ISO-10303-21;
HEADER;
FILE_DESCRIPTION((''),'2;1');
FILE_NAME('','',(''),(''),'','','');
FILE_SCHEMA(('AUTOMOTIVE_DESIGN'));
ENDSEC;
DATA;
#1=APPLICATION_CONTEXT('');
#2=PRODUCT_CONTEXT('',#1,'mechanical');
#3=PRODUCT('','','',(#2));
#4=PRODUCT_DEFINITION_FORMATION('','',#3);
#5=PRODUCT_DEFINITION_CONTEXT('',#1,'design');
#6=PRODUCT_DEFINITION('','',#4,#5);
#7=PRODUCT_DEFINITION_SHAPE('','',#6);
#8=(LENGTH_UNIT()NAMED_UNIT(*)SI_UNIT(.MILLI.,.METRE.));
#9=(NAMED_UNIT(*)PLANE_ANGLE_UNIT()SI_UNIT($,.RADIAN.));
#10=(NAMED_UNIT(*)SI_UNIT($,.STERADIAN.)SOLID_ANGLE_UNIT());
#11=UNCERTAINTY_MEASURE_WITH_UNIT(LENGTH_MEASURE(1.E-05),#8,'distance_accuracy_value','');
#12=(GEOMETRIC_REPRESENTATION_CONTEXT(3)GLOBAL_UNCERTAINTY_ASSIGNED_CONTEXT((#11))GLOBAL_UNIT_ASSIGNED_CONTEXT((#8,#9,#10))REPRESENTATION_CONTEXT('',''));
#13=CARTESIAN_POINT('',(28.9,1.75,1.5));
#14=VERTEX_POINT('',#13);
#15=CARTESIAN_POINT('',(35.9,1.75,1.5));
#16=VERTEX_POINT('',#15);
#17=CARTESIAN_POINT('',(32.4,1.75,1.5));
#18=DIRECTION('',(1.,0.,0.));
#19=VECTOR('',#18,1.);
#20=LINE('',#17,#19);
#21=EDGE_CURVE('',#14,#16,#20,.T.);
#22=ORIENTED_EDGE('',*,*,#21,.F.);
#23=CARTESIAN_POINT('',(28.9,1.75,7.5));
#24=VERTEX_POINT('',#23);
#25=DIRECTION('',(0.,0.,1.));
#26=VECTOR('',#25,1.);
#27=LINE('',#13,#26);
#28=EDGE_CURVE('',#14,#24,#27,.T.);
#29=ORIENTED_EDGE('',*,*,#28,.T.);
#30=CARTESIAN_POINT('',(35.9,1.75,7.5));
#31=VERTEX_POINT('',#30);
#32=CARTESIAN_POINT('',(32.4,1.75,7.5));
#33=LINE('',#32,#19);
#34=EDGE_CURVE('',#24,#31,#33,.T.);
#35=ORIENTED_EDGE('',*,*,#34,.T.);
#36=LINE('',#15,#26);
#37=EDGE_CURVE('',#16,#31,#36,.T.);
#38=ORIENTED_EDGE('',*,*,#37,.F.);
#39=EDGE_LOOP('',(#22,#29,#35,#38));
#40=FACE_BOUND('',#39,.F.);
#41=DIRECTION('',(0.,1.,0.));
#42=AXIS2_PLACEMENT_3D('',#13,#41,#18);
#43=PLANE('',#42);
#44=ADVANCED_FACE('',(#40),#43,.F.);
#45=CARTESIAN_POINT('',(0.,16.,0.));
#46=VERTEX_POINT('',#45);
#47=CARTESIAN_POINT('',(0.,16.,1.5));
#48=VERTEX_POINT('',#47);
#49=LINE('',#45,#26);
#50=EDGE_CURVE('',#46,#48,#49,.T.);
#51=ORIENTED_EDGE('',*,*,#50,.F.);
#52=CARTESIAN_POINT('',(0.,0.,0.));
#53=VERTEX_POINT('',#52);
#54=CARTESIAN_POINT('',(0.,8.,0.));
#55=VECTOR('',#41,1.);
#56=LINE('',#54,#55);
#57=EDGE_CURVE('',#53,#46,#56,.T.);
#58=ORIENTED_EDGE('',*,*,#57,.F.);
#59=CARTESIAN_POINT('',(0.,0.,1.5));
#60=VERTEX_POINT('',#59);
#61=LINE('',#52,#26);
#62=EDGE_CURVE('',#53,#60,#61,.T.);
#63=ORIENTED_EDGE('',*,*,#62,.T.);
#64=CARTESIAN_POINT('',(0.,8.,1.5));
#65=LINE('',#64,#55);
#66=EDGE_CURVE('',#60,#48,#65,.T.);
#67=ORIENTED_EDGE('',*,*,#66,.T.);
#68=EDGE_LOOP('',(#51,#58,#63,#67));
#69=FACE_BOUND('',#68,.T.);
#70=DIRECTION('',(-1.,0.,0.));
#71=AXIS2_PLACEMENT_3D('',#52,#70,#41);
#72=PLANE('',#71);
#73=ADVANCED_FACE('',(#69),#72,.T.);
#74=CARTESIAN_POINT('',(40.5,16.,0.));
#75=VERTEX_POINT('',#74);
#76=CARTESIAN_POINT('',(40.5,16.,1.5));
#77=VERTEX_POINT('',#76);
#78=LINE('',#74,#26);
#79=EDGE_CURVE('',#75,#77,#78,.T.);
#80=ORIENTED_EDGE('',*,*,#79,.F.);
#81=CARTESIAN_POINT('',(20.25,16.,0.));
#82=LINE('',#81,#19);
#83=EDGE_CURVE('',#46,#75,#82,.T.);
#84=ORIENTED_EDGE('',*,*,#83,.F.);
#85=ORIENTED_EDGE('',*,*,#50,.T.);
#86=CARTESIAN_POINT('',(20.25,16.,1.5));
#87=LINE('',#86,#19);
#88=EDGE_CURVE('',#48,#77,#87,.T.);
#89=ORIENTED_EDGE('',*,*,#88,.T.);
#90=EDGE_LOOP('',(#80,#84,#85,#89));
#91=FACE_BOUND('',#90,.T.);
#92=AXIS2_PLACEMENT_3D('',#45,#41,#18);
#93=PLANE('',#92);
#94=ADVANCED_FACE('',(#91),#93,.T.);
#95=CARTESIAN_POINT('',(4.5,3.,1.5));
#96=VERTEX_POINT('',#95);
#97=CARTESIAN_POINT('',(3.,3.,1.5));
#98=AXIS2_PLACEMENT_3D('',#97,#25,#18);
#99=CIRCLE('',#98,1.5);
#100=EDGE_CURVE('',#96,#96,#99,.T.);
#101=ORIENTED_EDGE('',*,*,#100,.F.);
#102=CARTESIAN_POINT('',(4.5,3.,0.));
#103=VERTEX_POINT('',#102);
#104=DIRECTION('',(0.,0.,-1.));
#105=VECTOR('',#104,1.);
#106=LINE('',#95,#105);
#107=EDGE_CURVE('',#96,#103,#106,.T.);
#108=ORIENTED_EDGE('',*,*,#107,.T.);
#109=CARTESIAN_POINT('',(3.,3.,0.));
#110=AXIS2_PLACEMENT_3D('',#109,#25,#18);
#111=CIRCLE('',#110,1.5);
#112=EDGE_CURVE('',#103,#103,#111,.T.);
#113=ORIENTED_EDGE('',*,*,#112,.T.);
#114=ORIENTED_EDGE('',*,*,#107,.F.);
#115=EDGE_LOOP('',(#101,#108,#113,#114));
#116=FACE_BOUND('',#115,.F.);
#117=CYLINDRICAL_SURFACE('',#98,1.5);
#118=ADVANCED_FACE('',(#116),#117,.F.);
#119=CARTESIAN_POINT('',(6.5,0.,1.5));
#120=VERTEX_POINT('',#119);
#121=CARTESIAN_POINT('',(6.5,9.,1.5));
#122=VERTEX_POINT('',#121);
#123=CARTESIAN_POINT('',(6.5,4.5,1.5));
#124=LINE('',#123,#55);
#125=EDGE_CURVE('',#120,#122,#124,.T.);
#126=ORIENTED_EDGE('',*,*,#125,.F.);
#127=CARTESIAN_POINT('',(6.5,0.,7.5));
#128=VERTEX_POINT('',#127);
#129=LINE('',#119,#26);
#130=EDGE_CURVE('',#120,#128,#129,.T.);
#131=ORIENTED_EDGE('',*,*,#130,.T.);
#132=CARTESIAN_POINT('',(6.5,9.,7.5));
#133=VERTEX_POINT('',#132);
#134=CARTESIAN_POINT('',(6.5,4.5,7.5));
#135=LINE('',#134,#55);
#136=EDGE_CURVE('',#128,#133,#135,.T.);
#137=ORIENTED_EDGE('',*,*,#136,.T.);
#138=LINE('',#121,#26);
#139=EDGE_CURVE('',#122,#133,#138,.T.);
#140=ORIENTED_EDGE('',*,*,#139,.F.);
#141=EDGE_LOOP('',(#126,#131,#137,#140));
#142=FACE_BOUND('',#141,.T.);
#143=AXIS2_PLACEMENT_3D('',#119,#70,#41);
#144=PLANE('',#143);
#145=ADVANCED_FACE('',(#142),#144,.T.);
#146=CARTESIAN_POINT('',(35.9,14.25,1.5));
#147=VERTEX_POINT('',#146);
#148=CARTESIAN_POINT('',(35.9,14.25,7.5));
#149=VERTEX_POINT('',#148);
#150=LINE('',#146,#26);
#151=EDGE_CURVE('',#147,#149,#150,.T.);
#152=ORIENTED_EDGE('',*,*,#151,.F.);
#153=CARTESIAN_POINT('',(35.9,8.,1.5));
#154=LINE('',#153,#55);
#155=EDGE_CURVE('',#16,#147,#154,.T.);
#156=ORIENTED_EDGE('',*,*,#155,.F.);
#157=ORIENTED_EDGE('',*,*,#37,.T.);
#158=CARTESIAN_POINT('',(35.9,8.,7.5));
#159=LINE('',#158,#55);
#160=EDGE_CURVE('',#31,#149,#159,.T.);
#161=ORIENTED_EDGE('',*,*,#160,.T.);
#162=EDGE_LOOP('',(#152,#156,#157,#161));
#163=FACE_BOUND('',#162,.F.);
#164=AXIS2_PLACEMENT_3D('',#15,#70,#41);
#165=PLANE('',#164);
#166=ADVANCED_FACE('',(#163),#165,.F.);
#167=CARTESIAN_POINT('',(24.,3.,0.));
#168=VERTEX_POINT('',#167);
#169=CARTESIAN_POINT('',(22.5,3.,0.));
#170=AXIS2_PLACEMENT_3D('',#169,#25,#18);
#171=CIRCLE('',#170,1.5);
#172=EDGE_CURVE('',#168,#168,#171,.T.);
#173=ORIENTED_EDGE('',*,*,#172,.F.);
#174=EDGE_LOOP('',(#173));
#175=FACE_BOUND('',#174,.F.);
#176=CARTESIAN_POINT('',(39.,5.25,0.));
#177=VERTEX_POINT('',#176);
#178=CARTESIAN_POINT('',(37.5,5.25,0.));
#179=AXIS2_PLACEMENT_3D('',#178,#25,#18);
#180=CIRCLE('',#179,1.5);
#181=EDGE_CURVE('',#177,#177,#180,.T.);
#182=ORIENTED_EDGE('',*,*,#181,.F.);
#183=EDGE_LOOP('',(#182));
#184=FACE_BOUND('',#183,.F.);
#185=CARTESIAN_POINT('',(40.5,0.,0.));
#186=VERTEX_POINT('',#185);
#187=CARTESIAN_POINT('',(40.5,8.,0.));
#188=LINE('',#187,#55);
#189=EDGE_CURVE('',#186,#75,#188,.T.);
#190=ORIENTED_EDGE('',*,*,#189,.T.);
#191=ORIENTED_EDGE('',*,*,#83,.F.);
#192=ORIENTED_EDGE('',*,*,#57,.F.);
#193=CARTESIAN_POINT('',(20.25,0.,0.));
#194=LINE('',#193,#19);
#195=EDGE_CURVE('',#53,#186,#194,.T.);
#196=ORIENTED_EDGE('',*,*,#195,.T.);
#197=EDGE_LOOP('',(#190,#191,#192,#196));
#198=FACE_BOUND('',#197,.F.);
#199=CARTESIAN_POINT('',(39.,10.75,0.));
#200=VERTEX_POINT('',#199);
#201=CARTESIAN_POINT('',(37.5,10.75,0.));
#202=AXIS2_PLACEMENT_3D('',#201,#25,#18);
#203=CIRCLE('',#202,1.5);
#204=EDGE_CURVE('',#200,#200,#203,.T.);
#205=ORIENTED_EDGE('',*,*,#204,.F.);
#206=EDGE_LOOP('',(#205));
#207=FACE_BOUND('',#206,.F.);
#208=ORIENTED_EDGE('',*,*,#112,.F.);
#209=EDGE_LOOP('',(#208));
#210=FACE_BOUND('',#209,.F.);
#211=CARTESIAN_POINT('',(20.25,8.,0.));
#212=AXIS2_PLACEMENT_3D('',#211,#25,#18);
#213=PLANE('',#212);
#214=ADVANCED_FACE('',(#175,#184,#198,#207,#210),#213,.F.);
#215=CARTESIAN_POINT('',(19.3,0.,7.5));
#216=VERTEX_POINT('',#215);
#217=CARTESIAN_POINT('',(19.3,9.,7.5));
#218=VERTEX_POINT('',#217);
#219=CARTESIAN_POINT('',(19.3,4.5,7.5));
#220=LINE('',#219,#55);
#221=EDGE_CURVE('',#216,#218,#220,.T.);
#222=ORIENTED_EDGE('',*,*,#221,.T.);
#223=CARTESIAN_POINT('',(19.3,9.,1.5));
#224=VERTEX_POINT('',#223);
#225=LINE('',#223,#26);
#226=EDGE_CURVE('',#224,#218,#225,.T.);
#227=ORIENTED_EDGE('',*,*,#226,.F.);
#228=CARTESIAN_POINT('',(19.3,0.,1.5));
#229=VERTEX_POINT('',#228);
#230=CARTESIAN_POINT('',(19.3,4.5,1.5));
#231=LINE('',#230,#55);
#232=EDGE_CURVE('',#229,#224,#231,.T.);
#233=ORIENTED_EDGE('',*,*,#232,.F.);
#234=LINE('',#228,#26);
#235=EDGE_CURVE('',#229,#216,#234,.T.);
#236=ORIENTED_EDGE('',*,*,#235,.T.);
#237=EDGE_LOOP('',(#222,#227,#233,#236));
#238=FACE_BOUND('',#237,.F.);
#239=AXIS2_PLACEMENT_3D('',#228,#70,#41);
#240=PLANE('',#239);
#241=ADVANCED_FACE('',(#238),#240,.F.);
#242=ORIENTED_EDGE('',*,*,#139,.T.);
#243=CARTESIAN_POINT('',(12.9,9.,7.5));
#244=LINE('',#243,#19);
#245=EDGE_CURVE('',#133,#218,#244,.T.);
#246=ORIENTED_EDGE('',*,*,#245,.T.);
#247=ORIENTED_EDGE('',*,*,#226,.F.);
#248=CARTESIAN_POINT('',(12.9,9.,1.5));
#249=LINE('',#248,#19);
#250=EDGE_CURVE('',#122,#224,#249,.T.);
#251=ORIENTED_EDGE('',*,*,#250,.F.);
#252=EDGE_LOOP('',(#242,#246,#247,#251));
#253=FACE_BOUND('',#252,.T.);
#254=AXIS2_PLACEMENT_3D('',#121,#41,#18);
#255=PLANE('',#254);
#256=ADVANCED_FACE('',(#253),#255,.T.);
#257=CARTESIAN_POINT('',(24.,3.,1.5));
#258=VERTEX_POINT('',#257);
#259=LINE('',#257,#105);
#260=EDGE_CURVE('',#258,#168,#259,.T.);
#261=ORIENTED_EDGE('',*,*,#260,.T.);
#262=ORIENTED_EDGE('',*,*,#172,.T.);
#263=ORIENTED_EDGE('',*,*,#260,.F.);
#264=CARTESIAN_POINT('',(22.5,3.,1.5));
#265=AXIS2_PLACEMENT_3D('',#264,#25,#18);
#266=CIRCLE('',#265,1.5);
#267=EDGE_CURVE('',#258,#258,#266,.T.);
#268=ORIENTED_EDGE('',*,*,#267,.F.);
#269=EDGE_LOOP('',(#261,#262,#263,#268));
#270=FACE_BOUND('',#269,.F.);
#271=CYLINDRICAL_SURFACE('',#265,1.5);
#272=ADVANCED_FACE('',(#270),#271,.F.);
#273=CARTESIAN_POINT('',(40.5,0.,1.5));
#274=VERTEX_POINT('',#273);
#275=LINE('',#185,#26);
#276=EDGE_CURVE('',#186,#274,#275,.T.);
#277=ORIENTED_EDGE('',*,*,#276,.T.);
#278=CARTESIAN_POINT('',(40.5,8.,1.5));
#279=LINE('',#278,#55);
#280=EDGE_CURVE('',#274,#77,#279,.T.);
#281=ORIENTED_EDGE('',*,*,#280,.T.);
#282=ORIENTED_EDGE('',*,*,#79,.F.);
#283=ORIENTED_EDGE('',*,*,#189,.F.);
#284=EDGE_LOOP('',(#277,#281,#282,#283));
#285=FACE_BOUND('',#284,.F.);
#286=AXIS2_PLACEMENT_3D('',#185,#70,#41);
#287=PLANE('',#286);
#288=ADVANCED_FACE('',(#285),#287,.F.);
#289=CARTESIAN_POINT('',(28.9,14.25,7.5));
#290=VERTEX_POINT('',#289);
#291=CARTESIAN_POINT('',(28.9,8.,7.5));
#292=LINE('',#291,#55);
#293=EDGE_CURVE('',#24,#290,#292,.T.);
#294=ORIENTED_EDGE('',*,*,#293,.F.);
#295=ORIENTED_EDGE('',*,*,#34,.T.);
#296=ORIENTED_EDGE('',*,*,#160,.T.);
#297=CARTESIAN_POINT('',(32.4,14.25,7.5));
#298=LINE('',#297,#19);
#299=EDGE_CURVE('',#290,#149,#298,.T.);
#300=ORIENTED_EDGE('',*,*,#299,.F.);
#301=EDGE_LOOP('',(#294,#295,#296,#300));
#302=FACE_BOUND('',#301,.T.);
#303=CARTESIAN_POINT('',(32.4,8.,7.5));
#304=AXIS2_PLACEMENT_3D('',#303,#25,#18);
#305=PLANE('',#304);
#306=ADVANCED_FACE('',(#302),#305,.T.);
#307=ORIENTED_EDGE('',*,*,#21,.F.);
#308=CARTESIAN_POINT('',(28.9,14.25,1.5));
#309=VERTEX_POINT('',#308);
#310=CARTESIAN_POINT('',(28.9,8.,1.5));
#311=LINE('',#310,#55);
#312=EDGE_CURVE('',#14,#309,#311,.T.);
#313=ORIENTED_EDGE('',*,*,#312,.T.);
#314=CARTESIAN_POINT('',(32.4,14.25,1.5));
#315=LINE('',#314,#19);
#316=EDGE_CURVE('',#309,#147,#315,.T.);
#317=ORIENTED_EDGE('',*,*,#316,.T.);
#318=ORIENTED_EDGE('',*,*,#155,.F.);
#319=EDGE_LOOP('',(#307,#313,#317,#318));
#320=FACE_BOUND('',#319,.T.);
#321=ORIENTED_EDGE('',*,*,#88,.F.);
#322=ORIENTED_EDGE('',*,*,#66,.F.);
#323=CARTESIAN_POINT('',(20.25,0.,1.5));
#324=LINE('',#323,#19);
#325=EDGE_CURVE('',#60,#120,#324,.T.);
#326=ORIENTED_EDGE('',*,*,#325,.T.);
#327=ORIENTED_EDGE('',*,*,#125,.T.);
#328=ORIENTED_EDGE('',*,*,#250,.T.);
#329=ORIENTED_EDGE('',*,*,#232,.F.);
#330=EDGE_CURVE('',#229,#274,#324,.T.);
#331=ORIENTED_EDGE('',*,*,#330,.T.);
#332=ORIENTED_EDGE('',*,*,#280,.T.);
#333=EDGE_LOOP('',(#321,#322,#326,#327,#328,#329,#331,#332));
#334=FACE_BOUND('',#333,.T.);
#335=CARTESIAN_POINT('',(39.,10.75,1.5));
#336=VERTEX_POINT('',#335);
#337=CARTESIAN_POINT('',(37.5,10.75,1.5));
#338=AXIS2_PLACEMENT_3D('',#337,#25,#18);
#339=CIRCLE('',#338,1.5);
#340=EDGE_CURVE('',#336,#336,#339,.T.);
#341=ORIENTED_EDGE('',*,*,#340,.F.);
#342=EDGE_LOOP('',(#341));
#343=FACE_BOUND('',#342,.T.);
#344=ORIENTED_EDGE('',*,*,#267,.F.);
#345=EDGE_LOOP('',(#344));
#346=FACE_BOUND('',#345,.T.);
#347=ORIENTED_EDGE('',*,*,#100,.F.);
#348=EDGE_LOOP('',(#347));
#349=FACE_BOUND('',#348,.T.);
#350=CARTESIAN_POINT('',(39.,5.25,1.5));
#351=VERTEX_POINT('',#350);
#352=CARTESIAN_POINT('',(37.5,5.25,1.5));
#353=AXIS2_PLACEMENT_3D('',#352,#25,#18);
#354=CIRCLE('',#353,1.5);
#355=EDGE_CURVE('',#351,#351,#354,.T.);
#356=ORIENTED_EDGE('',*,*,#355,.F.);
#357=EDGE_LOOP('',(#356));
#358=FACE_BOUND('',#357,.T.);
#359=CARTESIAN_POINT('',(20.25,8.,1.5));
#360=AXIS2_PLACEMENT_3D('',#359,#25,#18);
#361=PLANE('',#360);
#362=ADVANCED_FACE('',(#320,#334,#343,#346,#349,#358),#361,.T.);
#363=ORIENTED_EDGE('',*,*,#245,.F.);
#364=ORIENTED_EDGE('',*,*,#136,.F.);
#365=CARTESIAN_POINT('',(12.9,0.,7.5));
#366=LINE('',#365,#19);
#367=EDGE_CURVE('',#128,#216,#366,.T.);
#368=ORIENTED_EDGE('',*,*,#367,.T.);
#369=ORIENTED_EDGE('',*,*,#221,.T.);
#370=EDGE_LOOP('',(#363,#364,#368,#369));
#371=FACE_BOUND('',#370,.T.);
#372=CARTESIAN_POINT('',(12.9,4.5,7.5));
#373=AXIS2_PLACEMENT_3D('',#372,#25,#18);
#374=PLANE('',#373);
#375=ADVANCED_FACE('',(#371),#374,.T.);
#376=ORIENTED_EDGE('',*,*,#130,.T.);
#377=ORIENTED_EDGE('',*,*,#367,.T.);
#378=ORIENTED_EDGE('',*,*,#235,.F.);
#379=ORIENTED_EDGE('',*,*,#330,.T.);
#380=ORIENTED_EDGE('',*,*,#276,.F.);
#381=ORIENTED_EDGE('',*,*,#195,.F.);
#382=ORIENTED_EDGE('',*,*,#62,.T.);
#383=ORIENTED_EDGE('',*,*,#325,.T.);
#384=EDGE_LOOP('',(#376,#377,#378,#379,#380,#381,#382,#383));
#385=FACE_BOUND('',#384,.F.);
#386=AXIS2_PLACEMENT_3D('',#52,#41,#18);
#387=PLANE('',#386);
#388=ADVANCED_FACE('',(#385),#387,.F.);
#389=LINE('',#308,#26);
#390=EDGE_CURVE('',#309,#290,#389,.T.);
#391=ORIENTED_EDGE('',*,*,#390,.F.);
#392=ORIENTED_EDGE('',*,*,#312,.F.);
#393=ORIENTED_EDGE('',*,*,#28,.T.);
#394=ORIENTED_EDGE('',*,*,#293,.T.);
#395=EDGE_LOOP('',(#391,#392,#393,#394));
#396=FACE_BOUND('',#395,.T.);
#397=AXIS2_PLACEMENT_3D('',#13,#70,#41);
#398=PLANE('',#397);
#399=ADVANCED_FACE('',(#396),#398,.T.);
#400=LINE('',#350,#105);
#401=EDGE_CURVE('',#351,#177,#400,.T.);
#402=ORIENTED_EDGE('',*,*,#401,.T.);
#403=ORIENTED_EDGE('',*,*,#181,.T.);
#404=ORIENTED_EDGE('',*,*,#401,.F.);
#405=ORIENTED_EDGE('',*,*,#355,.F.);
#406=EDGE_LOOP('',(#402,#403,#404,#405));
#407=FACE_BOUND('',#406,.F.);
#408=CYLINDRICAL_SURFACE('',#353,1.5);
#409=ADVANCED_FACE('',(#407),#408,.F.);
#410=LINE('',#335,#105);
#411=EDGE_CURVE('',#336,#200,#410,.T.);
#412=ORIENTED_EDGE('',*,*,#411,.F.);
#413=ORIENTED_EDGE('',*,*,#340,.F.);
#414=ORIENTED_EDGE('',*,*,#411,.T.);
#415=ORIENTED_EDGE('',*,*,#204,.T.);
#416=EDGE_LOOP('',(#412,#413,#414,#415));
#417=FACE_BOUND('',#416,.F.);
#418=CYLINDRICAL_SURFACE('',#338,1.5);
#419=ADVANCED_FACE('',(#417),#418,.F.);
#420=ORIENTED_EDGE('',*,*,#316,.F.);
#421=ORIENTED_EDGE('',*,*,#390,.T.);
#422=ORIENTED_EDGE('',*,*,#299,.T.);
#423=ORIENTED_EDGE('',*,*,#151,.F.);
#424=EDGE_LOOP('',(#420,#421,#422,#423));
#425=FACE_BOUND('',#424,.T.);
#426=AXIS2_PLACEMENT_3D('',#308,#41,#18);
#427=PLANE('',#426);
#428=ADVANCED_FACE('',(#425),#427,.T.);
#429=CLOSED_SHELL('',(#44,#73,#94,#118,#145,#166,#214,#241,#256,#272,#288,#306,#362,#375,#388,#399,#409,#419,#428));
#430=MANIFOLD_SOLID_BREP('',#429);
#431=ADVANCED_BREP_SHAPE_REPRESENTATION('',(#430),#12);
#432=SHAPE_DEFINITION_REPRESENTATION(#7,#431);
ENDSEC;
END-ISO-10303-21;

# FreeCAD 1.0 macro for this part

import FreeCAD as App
import Part
import Sketcher

doc = App.newDocument("Part")
body = doc.addObject("PartDesign::Body", "Body")

sketch1 = doc.addObject("Sketcher::SketchObject", "Sketch")
body.addObject(sketch1)
sketch1.AttachmentSupport = (doc.XY_Plane, [""])
sketch1.MapMode = "FlatFace"
sketch1.addGeometry([
    Part.LineSegment(App.Vector(0, 16, 0), App.Vector(0, 0, 0)),
    Part.LineSegment(App.Vector(0, 0, 0), App.Vector(40.5, 0, 0)),
    Part.LineSegment(App.Vector(40.5, 0, 0), App.Vector(40.5, 16, 0)),
    Part.LineSegment(App.Vector(40.5, 16, 0), App.Vector(0, 16, 0)),
], False)
sketch1.addConstraint([
    Sketcher.Constraint("Coincident", 0, 2, 1, 1),
    Sketcher.Constraint("Coincident", 1, 2, 2, 1),
    Sketcher.Constraint("Coincident", 2, 2, 3, 1),
    Sketcher.Constraint("Coincident", 3, 2, 0, 1),
    Sketcher.Constraint("Vertical", 0),
    Sketcher.Constraint("Horizontal", 1),
    Sketcher.Constraint("Vertical", 2),
    Sketcher.Constraint("Horizontal", 3),
    Sketcher.Constraint("Coincident", 0, 2, -1, 1),
    Sketcher.Constraint("DistanceY", 0, 2, 0, 1, 16.0),
    Sketcher.Constraint("DistanceX", 1, 1, 1, 2, 40.5),
])
pad1 = doc.addObject("PartDesign::Pad", "Pad")
body.addObject(pad1)
pad1.Profile = sketch1
pad1.Length = 1.5

sketch2 = doc.addObject("Sketcher::SketchObject", "Sketch001")
body.addObject(sketch2)
sketch2.AttachmentSupport = (doc.XY_Plane, [""])
sketch2.MapMode = "FlatFace"
sketch2.AttachmentOffset = App.Placement(App.Vector(0, 0, 1.5), App.Rotation())
sketch2.addGeometry([
    Part.Circle(App.Vector(3, 3, 0), App.Vector(0, 0, 1), 1.5),
    Part.Circle(App.Vector(22.5, 3, 0), App.Vector(0, 0, 1), 1.5),
    Part.Circle(App.Vector(37.5, 10.75, 0), App.Vector(0, 0, 1), 1.5),
    Part.Circle(App.Vector(37.5, 5.25, 0), App.Vector(0, 0, 1), 1.5),
], False)
sketch2.addConstraint([
    Sketcher.Constraint("Equal", 0, 1),
    Sketcher.Constraint("Equal", 1, 2),
    Sketcher.Constraint("Equal", 2, 3),
    Sketcher.Constraint("Horizontal", 0, 3, 1, 3),
    Sketcher.Constraint("Vertical", 2, 3, 3, 3),
    Sketcher.Constraint("Diameter", 0, 3.0),
    Sketcher.Constraint("DistanceX", -1, 1, 0, 3, 3.0),
    Sketcher.Constraint("DistanceY", -1, 1, 0, 3, 3.0),
    Sketcher.Constraint("DistanceX", 1, 3, 2, 3, 15.0),
    Sketcher.Constraint("DistanceX", -1, 1, 1, 3, 22.5),
    Sketcher.Constraint("DistanceY", 3, 3, 2, 3, 5.5),
    Sketcher.Constraint("DistanceY", -1, 1, 2, 3, 10.75),
])
pocket1 = doc.addObject("PartDesign::Pocket", "Pocket")
body.addObject(pocket1)
pocket1.Profile = sketch2
pocket1.Type = "ThroughAll"

sketch3 = doc.addObject("Sketcher::SketchObject", "Sketch002")
body.addObject(sketch3)
sketch3.AttachmentSupport = (doc.XY_Plane, [""])
sketch3.MapMode = "FlatFace"
sketch3.AttachmentOffset = App.Placement(App.Vector(0, 0, 1.5), App.Rotation())
sketch3.addGeometry([
    Part.LineSegment(App.Vector(6.5, 9, 0), App.Vector(6.5, 0, 0)),
    Part.LineSegment(App.Vector(6.5, 0, 0), App.Vector(19.3, 0, 0)),
    Part.LineSegment(App.Vector(19.3, 0, 0), App.Vector(19.3, 9, 0)),
    Part.LineSegment(App.Vector(19.3, 9, 0), App.Vector(6.5, 9, 0)),
    Part.LineSegment(App.Vector(28.9, 14.25, 0), App.Vector(28.9, 1.75, 0)),
    Part.LineSegment(App.Vector(28.9, 1.75, 0), App.Vector(35.9, 1.75, 0)),
    Part.LineSegment(App.Vector(35.9, 1.75, 0), App.Vector(35.9, 14.25, 0)),
    Part.LineSegment(App.Vector(35.9, 14.25, 0), App.Vector(28.9, 14.25, 0)),
], False)
sketch3.addConstraint([
    Sketcher.Constraint("Coincident", 0, 2, 1, 1),
    Sketcher.Constraint("Coincident", 1, 2, 2, 1),
    Sketcher.Constraint("Coincident", 2, 2, 3, 1),
    Sketcher.Constraint("Coincident", 3, 2, 0, 1),
    Sketcher.Constraint("Coincident", 4, 2, 5, 1),
    Sketcher.Constraint("Coincident", 5, 2, 6, 1),
    Sketcher.Constraint("Coincident", 6, 2, 7, 1),
    Sketcher.Constraint("Coincident", 7, 2, 4, 1),
    Sketcher.Constraint("Vertical", 0),
    Sketcher.Constraint("Horizontal", 1),
    Sketcher.Constraint("Vertical", 2),
    Sketcher.Constraint("Horizontal", 3),
    Sketcher.Constraint("Vertical", 4),
    Sketcher.Constraint("Horizontal", 5),
    Sketcher.Constraint("Vertical", 6),
    Sketcher.Constraint("Horizontal", 7),
    Sketcher.Constraint("PointOnObject", 0, 2, -1),
    Sketcher.Constraint("DistanceX", 5, 1, 5, 2, 7.0),
    Sketcher.Constraint("DistanceY", 0, 2, 0, 1, 9.0),
    Sketcher.Constraint("DistanceX", 1, 1, 1, 2, 12.8),
    Sketcher.Constraint("DistanceY", 4, 2, 4, 1, 12.5),
    Sketcher.Constraint("DistanceX", -1, 1, 0, 2, 6.5),
    Sketcher.Constraint("DistanceX", -1, 1, 4, 2, 28.9),
    Sketcher.Constraint("DistanceY", -1, 1, 4, 2, 1.75),
])
pad2 = doc.addObject("PartDesign::Pad", "Pad001")
body.addObject(pad2)
pad2.Profile = sketch3
pad2.Length = 6

doc.recompute()
